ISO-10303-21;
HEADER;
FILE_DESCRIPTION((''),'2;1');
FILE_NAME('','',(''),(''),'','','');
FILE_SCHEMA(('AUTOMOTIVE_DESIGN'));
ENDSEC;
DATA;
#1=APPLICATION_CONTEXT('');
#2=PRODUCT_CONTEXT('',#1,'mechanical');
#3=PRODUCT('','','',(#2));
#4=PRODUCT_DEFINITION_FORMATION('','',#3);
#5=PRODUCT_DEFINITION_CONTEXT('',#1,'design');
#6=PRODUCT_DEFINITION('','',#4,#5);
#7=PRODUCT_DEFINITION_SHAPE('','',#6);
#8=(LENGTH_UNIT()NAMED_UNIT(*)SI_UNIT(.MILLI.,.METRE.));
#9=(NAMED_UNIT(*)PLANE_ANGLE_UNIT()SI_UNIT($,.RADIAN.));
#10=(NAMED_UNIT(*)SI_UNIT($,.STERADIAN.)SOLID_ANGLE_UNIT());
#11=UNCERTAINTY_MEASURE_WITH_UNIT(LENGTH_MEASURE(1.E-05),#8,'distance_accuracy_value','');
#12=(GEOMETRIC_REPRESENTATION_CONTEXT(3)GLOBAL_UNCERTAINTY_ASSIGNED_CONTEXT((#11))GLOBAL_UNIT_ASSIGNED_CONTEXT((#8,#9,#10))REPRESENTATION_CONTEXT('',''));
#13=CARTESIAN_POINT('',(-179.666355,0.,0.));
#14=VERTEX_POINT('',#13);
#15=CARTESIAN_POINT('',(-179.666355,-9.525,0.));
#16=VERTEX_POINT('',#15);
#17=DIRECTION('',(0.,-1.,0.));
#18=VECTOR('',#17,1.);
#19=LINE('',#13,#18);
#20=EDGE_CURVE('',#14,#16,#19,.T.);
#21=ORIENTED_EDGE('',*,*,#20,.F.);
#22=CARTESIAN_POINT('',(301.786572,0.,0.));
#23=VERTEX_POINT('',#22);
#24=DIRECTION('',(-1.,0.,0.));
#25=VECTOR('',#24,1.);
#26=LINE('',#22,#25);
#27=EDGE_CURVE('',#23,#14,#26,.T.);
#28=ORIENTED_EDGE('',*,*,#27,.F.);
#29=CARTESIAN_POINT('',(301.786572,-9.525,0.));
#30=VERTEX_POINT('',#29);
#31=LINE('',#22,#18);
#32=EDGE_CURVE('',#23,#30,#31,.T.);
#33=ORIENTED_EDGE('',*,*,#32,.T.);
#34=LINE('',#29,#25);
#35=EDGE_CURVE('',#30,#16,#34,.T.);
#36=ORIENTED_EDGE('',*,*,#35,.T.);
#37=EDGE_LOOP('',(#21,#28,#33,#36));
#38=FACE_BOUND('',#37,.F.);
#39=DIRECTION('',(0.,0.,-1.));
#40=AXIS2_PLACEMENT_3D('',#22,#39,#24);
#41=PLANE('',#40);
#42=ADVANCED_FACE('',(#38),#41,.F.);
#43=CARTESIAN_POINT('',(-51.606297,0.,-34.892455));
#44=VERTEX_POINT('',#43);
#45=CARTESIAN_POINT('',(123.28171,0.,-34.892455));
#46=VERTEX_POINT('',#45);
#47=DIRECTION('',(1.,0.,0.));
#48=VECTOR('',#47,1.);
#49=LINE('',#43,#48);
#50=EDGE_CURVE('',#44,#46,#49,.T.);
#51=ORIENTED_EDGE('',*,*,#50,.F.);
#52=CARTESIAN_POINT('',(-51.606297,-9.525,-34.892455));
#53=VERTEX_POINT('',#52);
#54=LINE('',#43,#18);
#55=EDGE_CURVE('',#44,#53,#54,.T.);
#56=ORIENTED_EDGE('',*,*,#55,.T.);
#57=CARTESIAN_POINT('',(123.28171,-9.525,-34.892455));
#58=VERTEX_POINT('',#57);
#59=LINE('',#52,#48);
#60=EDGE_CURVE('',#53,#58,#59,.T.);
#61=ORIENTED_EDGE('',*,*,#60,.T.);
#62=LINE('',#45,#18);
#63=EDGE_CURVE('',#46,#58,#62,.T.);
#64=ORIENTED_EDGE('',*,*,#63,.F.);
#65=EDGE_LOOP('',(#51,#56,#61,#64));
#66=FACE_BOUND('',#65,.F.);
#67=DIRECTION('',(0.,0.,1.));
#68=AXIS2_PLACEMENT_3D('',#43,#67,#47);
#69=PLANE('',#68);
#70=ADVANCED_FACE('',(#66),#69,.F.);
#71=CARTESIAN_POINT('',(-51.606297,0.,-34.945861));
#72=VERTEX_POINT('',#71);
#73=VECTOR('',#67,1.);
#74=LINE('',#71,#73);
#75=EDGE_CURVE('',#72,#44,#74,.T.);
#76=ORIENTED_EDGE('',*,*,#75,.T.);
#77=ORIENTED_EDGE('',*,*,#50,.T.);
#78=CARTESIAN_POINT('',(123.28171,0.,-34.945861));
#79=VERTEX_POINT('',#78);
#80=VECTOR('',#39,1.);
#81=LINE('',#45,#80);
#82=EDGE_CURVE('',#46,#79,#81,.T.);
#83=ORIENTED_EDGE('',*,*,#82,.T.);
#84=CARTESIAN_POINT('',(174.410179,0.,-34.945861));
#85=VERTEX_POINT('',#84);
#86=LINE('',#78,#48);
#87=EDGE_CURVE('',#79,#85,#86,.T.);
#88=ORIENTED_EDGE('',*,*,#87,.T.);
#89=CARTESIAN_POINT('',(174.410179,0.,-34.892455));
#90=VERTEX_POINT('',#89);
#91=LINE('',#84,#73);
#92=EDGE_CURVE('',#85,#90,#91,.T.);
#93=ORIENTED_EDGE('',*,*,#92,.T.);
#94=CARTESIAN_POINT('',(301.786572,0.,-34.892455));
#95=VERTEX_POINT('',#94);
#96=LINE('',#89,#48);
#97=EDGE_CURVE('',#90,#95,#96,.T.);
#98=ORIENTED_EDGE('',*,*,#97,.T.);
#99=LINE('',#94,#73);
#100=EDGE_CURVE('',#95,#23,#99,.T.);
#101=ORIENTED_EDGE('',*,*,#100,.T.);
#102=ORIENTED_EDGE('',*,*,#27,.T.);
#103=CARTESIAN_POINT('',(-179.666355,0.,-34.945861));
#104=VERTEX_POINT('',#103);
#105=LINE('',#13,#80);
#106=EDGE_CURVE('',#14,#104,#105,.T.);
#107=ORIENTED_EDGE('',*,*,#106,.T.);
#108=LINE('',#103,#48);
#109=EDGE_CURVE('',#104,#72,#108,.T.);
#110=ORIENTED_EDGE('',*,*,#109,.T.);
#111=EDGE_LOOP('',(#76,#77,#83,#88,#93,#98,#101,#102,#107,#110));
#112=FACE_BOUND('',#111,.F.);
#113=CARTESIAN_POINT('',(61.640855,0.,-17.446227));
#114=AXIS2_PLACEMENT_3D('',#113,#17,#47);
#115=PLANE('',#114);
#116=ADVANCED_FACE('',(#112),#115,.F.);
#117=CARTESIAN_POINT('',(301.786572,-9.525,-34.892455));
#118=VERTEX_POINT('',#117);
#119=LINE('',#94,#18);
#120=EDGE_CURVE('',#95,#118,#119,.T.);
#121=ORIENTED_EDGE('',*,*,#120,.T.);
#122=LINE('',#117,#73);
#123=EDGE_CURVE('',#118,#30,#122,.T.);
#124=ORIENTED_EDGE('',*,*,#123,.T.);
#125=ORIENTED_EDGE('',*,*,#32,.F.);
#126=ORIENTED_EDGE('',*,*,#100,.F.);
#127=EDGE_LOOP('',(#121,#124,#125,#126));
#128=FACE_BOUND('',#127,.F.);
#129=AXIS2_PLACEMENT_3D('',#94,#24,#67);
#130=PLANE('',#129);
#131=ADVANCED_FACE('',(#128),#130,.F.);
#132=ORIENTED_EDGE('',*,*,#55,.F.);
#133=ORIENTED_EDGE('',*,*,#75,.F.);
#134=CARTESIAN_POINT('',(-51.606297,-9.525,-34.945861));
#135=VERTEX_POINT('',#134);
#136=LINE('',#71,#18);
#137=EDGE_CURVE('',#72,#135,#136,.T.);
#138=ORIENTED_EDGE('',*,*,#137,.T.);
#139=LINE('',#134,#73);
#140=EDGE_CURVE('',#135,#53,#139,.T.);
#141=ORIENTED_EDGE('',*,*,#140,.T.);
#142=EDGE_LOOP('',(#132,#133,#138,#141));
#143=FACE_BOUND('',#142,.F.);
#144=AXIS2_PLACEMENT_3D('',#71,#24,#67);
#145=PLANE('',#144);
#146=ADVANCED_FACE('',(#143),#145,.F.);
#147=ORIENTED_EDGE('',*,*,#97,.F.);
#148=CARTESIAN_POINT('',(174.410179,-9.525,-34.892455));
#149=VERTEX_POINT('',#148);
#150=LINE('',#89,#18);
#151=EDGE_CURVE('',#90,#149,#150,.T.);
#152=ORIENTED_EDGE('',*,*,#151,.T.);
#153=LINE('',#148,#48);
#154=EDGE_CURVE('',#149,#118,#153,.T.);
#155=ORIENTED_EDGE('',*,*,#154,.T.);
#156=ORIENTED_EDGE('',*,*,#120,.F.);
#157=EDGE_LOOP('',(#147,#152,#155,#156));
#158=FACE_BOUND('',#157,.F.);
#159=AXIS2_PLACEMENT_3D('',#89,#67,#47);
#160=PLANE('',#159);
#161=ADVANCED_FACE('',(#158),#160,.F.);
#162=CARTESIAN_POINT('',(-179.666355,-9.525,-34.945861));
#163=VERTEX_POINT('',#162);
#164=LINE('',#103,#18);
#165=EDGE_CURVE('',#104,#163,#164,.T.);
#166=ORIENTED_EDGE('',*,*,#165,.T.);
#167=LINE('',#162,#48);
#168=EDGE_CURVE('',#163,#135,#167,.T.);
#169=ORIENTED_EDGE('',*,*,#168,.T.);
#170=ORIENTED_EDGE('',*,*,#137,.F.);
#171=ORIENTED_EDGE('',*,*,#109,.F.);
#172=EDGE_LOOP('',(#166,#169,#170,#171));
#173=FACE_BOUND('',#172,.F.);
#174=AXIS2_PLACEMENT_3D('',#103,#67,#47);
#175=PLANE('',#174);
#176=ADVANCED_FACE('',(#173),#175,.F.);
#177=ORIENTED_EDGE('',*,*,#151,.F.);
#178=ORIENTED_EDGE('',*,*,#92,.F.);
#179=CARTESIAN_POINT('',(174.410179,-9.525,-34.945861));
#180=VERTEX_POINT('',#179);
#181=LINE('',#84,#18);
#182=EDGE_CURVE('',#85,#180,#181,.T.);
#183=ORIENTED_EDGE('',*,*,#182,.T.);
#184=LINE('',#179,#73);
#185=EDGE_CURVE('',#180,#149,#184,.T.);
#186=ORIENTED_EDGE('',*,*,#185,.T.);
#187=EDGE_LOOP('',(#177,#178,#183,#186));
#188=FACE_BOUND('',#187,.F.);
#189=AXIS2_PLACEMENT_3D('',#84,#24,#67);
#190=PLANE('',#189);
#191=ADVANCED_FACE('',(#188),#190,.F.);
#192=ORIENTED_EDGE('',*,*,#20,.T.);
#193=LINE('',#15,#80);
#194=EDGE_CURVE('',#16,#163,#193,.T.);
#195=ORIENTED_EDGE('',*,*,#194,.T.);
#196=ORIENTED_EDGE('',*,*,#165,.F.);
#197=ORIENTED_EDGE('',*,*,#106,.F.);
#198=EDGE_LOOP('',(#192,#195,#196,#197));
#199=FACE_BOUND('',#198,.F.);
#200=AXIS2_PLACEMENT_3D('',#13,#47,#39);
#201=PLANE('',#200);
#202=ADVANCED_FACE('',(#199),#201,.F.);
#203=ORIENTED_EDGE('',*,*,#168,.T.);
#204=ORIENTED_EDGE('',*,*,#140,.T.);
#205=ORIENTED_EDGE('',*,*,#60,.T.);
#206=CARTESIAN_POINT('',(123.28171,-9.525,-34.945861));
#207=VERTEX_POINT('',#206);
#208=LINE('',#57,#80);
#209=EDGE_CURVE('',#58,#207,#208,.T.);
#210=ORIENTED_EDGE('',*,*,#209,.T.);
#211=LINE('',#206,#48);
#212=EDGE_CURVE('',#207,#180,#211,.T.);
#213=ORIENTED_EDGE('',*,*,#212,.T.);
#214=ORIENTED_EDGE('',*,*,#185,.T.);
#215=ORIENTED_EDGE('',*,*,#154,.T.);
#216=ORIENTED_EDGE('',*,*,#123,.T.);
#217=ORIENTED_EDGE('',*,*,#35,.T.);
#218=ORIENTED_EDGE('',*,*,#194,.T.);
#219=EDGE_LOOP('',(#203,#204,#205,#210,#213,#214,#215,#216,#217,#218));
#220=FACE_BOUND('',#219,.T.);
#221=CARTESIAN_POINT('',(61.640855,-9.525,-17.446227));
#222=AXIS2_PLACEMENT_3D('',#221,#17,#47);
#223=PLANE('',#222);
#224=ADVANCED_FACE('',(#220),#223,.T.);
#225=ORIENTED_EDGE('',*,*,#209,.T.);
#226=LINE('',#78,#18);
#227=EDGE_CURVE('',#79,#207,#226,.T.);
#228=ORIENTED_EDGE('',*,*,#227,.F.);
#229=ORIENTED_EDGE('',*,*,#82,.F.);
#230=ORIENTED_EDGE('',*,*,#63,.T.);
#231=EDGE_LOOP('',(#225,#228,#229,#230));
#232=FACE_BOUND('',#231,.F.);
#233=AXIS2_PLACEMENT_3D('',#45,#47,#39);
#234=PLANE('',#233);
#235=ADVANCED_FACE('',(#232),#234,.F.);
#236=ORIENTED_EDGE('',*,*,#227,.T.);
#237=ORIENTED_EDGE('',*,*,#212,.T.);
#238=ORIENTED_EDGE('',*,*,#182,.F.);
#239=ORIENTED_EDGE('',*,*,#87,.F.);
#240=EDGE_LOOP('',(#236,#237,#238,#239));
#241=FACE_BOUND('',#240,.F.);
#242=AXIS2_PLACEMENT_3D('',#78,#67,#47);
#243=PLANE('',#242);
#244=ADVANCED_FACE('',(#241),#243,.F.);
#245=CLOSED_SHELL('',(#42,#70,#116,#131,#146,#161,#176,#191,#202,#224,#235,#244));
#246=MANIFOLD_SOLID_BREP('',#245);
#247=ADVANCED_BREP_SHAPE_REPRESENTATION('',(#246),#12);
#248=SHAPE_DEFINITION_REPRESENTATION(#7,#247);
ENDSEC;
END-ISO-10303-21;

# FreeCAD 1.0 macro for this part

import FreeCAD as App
import Part
import Sketcher

doc = App.newDocument("Part")
params = doc.addObject("Spreadsheet::Sheet", "Params")
for row, (alias, value) in enumerate([
    ("pad1_length", "0.375 in"),
], start=1):
    params.set(f"A{row}", alias)
    params.set(f"B{row}", "=" + value)
    params.setAlias(f"B{row}", alias)

body = doc.addObject("PartDesign::Body", "Body")

# Sketch on XZ plane
sketch1 = body.newObject("Sketcher::SketchObject", "Sketch")
sketch1.AttachmentSupport = (doc.getObject("XZ_Plane"), [""])
sketch1.MapMode = "FlatFace"
sketch1.addGeometry(Part.LineSegment(App.Vector(-51.61, -34.89, 0), App.Vector(123.28, -34.89, 0)), False)
sketch1.addGeometry(Part.LineSegment(App.Vector(123.28, -34.89, 0), App.Vector(123.28, -34.95, 0)), False)
sketch1.addGeometry(Part.LineSegment(App.Vector(123.28, -34.95, 0), App.Vector(174.41, -34.95, 0)), False)
sketch1.addGeometry(Part.LineSegment(App.Vector(174.41, -34.95, 0), App.Vector(174.41, -34.89, 0)), False)
sketch1.addGeometry(Part.LineSegment(App.Vector(174.41, -34.89, 0), App.Vector(301.79, -34.89, 0)), False)
sketch1.addGeometry(Part.LineSegment(App.Vector(301.79, -34.89, 0), App.Vector(301.79, 0, 0)), False)
sketch1.addGeometry(Part.LineSegment(App.Vector(301.79, 0, 0), App.Vector(-179.67, 0, 0)), False)
sketch1.addGeometry(Part.LineSegment(App.Vector(-179.67, 0, 0), App.Vector(-179.67, -34.95, 0)), False)
sketch1.addGeometry(Part.LineSegment(App.Vector(-179.67, -34.95, 0), App.Vector(-51.61, -34.95, 0)), False)
sketch1.addGeometry(Part.LineSegment(App.Vector(-51.61, -34.95, 0), App.Vector(-51.61, -34.89, 0)), False)
sketch1.addConstraint(Sketcher.Constraint("Coincident", 0, 2, 1, 1))
sketch1.addConstraint(Sketcher.Constraint("Coincident", 1, 2, 2, 1))
sketch1.addConstraint(Sketcher.Constraint("Coincident", 2, 2, 3, 1))
sketch1.addConstraint(Sketcher.Constraint("Coincident", 3, 2, 4, 1))
sketch1.addConstraint(Sketcher.Constraint("Coincident", 4, 2, 5, 1))
sketch1.addConstraint(Sketcher.Constraint("Coincident", 5, 2, 6, 1))
sketch1.addConstraint(Sketcher.Constraint("Coincident", 6, 2, 7, 1))
sketch1.addConstraint(Sketcher.Constraint("Coincident", 7, 2, 8, 1))
sketch1.addConstraint(Sketcher.Constraint("Coincident", 8, 2, 9, 1))
sketch1.addConstraint(Sketcher.Constraint("Coincident", 9, 2, 0, 1))
sketch1.addConstraint(Sketcher.Constraint("Horizontal", 0))
sketch1.addConstraint(Sketcher.Constraint("Vertical", 1))
sketch1.addConstraint(Sketcher.Constraint("Horizontal", 2))
sketch1.addConstraint(Sketcher.Constraint("Vertical", 3))
sketch1.addConstraint(Sketcher.Constraint("Horizontal", 4))
sketch1.addConstraint(Sketcher.Constraint("Vertical", 5))
sketch1.addConstraint(Sketcher.Constraint("Horizontal", 6))
sketch1.addConstraint(Sketcher.Constraint("Vertical", 7))
sketch1.addConstraint(Sketcher.Constraint("Horizontal", 8))
sketch1.addConstraint(Sketcher.Constraint("Vertical", 9))
sketch1.addConstraint(Sketcher.Constraint("PointOnObject", 5, 2, -1))
sketch1.addConstraint(Sketcher.Constraint("Horizontal", 0, 2, 3, 2))
sketch1.addConstraint(Sketcher.Constraint("Horizontal", 2, 2, 7, 2))
sketch1.addConstraint(Sketcher.Constraint("DistanceX", 2, 1, 2, 2, 51.128469))
sketch1.addConstraint(Sketcher.Constraint("DistanceY", 7, 2, 7, 1, 34.945861))
sketch1.addConstraint(Sketcher.Constraint("DistanceX", 0, 1, 0, 2, 174.888007))
sketch1.addConstraint(Sketcher.Constraint("DistanceX", 4, 1, 4, 2, 127.376392))
sketch1.addConstraint(Sketcher.Constraint("DistanceX", 6, 2, 6, 1, 481.452927))
sketch1.addConstraint(Sketcher.Constraint("DistanceY", 1, 2, 1, 1, 0.053406))
sketch1.addConstraint(Sketcher.Constraint("DistanceX", -1, 1, 0, 2, 123.28171))
pad1 = body.newObject("PartDesign::Pad", "Pad")
pad1.Profile = sketch1
pad1.setExpression("Length", "Params.pad1_length")

doc.recompute()
